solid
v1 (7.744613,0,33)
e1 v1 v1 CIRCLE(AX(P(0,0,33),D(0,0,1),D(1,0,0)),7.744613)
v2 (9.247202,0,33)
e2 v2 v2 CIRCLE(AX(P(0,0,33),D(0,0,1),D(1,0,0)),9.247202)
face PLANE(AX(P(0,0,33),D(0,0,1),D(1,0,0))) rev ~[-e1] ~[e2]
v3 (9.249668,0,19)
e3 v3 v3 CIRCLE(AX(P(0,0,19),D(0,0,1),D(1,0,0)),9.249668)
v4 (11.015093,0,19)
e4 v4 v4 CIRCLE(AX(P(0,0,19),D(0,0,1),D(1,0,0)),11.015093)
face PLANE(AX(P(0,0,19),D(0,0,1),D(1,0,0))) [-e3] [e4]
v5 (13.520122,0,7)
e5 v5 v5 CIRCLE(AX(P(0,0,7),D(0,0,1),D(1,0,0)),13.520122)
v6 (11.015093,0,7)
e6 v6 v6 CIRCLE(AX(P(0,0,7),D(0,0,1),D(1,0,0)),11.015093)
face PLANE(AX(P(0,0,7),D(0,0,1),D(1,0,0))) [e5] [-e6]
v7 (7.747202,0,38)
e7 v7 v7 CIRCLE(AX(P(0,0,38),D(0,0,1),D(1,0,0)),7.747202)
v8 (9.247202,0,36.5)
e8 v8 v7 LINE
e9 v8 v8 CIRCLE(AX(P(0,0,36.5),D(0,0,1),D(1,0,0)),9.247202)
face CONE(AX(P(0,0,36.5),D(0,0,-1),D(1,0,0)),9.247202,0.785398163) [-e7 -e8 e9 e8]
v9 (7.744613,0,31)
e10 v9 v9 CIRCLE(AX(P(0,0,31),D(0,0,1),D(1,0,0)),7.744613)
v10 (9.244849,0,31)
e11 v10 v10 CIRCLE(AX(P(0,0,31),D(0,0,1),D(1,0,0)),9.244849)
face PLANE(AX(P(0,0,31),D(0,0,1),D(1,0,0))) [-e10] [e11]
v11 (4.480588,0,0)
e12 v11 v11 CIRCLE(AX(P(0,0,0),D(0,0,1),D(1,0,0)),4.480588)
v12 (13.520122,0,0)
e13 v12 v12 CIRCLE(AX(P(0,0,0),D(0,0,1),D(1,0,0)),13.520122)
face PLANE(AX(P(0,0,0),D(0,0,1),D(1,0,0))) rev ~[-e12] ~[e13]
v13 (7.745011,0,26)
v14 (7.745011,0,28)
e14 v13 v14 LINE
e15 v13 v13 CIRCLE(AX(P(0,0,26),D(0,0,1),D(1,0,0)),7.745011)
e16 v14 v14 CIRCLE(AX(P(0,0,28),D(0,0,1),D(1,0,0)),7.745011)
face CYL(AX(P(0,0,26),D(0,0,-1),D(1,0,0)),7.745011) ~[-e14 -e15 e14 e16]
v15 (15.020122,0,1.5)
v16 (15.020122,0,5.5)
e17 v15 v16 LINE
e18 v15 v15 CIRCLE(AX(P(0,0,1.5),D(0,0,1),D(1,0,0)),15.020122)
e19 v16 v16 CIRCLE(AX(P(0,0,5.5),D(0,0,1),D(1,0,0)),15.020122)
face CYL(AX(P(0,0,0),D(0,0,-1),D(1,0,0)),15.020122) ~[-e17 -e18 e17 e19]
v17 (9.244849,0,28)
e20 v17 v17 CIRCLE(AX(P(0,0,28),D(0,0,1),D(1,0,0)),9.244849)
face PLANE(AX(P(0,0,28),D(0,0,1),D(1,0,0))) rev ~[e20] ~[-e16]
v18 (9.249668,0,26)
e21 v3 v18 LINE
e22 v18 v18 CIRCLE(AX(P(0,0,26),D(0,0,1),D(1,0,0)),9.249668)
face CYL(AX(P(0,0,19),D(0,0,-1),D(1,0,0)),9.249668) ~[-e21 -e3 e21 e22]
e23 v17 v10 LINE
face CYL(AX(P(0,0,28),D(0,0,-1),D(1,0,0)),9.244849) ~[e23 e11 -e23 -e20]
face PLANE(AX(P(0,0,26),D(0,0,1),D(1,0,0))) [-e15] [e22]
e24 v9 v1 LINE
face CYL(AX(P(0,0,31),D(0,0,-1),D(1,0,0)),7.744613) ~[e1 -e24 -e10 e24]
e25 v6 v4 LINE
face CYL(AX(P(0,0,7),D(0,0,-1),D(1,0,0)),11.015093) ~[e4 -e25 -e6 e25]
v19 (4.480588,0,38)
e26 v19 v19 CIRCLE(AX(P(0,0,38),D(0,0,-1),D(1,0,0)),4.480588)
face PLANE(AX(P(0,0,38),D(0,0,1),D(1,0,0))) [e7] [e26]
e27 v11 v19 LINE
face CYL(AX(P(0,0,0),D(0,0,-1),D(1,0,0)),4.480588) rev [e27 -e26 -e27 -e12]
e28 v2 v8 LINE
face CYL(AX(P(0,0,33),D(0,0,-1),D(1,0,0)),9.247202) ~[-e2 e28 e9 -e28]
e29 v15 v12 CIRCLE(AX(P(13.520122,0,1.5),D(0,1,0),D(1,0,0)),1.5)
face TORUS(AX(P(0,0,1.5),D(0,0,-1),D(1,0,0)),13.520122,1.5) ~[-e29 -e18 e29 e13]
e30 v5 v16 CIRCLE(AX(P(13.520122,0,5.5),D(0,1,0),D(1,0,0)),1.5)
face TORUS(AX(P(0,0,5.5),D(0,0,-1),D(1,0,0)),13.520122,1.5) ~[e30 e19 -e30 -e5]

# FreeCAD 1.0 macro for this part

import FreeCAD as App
import Part
import Sketcher
from FreeCAD import Vector


def edges_at(feature, points):
    """Names of the edges that pass closest to the given points."""
    edges = feature.Shape.Edges
    near = lambda p: min(range(len(edges)), key=lambda i: edges[i].distToShape(Part.Vertex(*p))[0])
    return sorted({f"Edge{near(p) + 1}" for p in points})

doc = App.newDocument("Part")
params = doc.addObject("Spreadsheet::Sheet", "Params")
for row, (alias, value) in enumerate([
    ("pad1_length", "7 mm"),
    ("pad2_length", "12 mm"),
    ("pad3_length", "7 mm"),
    ("pad4_length", "2 mm"),
    ("pad5_length", "3 mm"),
    ("pad6_length", "2 mm"),
    ("pad7_length", "5 mm"),
    ("chamfer_size", "1.5 mm"),
    ("fillet_radius", "1.5 mm"),
    ("pocket1_length", "50 mm"),
], start=1):
    params.set(f"A{row}", alias)
    params.set(f"B{row}", "=" + value)
    params.setAlias(f"B{row}", alias)

body = doc.addObject("PartDesign::Body", "Body")

sketch1 = doc.addObject("Sketcher::SketchObject", "Sketch")
body.addObject(sketch1)
sketch1.AttachmentSupport = (doc.XY_Plane, [""])
sketch1.MapMode = "FlatFace"
sketch1.addGeometry(Part.Circle(Vector(0, 0, 0), Vector(0, 0, 1), 15), False)
sketch1.addConstraint([
    Sketcher.Constraint("Coincident", 0, 3, -1, 1),
    Sketcher.Constraint("Diameter", 0, 30.040244),
])
pad1 = doc.addObject("PartDesign::Pad", "Pad")
body.addObject(pad1)
pad1.Profile = sketch1
pad1.setExpression("Length", "Params.pad1_length")

sketch2 = doc.addObject("Sketcher::SketchObject", "Sketch001")
body.addObject(sketch2)
sketch2.AttachmentSupport = (doc.XY_Plane, [""])
sketch2.MapMode = "FlatFace"
sketch2.AttachmentOffset = App.Placement(Vector(0, 0, 7), App.Rotation())
sketch2.addGeometry(Part.Circle(Vector(0, 0, 0), Vector(0, 0, 1), 11), False)
sketch2.addConstraint([
    Sketcher.Constraint("Coincident", 0, 3, -1, 1),
    Sketcher.Constraint("Diameter", 0, 22.030186),
])
pad2 = doc.addObject("PartDesign::Pad", "Pad001")
body.addObject(pad2)
pad2.Profile = sketch2
pad2.setExpression("Length", "Params.pad2_length")

sketch3 = doc.addObject("Sketcher::SketchObject", "Sketch002")
body.addObject(sketch3)
sketch3.AttachmentSupport = (doc.XY_Plane, [""])
sketch3.MapMode = "FlatFace"
sketch3.AttachmentOffset = App.Placement(Vector(0, 0, 19), App.Rotation())
sketch3.addGeometry(Part.Circle(Vector(0, 0, 0), Vector(0, 0, 1), 9), False)
sketch3.addConstraint([
    Sketcher.Constraint("Coincident", 0, 3, -1, 1),
    Sketcher.Constraint("Diameter", 0, 18.499336),
])
pad3 = doc.addObject("PartDesign::Pad", "Pad002")
body.addObject(pad3)
pad3.Profile = sketch3
pad3.setExpression("Length", "Params.pad3_length")

sketch4 = doc.addObject("Sketcher::SketchObject", "Sketch003")
body.addObject(sketch4)
sketch4.AttachmentSupport = (doc.XY_Plane, [""])
sketch4.MapMode = "FlatFace"
sketch4.AttachmentOffset = App.Placement(Vector(0, 0, 26), App.Rotation())
sketch4.addGeometry(Part.Circle(Vector(0, 0, 0), Vector(0, 0, 1), 8), False)
sketch4.addConstraint([
    Sketcher.Constraint("Coincident", 0, 3, -1, 1),
    Sketcher.Constraint("Diameter", 0, 15.490022),
])
pad4 = doc.addObject("PartDesign::Pad", "Pad003")
body.addObject(pad4)
pad4.Profile = sketch4
pad4.setExpression("Length", "Params.pad4_length")

sketch5 = doc.addObject("Sketcher::SketchObject", "Sketch004")
body.addObject(sketch5)
sketch5.AttachmentSupport = (doc.XY_Plane, [""])
sketch5.MapMode = "FlatFace"
sketch5.AttachmentOffset = App.Placement(Vector(0, 0, 28), App.Rotation())
sketch5.addGeometry(Part.Circle(Vector(0, 0, 0), Vector(0, 0, 1), 9), False)
sketch5.addConstraint([
    Sketcher.Constraint("Coincident", 0, 3, -1, 1),
    Sketcher.Constraint("Diameter", 0, 18.489698),
])
pad5 = doc.addObject("PartDesign::Pad", "Pad004")
body.addObject(pad5)
pad5.Profile = sketch5
pad5.setExpression("Length", "Params.pad5_length")

sketch6 = doc.addObject("Sketcher::SketchObject", "Sketch005")
body.addObject(sketch6)
sketch6.AttachmentSupport = (doc.XY_Plane, [""])
sketch6.MapMode = "FlatFace"
sketch6.AttachmentOffset = App.Placement(Vector(0, 0, 31), App.Rotation())
sketch6.addGeometry(Part.Circle(Vector(0, 0, 0), Vector(0, 0, 1), 8), False)
sketch6.addConstraint([
    Sketcher.Constraint("Coincident", 0, 3, -1, 1),
    Sketcher.Constraint("Diameter", 0, 15.489226),
])
pad6 = doc.addObject("PartDesign::Pad", "Pad005")
body.addObject(pad6)
pad6.Profile = sketch6
pad6.setExpression("Length", "Params.pad6_length")

sketch7 = doc.addObject("Sketcher::SketchObject", "Sketch006")
body.addObject(sketch7)
sketch7.AttachmentSupport = (doc.XY_Plane, [""])
sketch7.MapMode = "FlatFace"
sketch7.AttachmentOffset = App.Placement(Vector(0, 0, 33), App.Rotation())
sketch7.addGeometry(Part.Circle(Vector(0, 0, 0), Vector(0, 0, 1), 9), False)
sketch7.addConstraint([
    Sketcher.Constraint("Coincident", 0, 3, -1, 1),
    Sketcher.Constraint("Diameter", 0, 18.494404),
])
pad7 = doc.addObject("PartDesign::Pad", "Pad006")
body.addObject(pad7)
pad7.Profile = sketch7
pad7.setExpression("Length", "Params.pad7_length")
doc.recompute()

chamfer = doc.addObject("PartDesign::Chamfer", "Chamfer")
body.addObject(chamfer)
chamfer.Base = (pad7, edges_at(pad7, [(-9.247, 0, 38)]))
chamfer.setExpression("Size", "Params.chamfer_size")
doc.recompute()

fillet = doc.addObject("PartDesign::Fillet", "Fillet")
body.addObject(fillet)
fillet.Base = (chamfer, edges_at(chamfer, [(-15.02, 0, 7), (-15.02, 0, 0)]))
fillet.setExpression("Radius", "Params.fillet_radius")

sketch8 = doc.addObject("Sketcher::SketchObject", "Sketch007")
body.addObject(sketch8)
sketch8.AttachmentSupport = (doc.XY_Plane, [""])
sketch8.MapMode = "FlatFace"
sketch8.addGeometry(Part.Circle(Vector(0, 0, 0), Vector(0, 0, 1), 4.5), False)
sketch8.addConstraint([
    Sketcher.Constraint("Coincident", 0, 3, -1, 1),
    Sketcher.Constraint("Diameter", 0, 8.961176),
])
pocket1 = doc.addObject("PartDesign::Pocket", "Pocket")
body.addObject(pocket1)
pocket1.Profile = sketch8
pocket1.setExpression("Length", "Params.pocket1_length")
pocket1.Reversed = True

doc.recompute()
